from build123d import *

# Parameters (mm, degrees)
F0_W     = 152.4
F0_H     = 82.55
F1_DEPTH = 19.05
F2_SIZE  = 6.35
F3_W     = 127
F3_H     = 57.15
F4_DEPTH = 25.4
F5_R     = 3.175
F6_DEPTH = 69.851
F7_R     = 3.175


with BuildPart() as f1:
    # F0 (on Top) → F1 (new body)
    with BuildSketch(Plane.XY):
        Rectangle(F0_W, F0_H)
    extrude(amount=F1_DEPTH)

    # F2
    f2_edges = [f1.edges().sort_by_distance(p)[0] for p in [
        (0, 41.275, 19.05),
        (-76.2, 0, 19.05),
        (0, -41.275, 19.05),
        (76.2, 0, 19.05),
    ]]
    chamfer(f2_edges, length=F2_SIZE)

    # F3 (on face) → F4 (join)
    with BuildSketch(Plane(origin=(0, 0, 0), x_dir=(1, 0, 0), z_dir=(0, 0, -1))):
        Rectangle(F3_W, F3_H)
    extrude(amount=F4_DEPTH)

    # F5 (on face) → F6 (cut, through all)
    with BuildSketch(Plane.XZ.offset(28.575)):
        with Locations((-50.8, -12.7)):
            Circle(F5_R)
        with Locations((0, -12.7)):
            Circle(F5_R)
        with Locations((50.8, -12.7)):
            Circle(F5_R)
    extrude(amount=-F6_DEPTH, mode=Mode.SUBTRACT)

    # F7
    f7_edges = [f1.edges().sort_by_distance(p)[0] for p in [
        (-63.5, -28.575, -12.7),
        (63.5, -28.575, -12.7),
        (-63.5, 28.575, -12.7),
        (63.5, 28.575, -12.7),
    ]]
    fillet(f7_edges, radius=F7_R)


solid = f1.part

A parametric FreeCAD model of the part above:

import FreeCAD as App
import Part
import Sketcher

V = App.Vector
Q = App.Units.Quantity


def edges_at(feature, points):
    """Names of the edges that pass closest to the given points."""
    edges = feature.Shape.Edges
    near = lambda p: min(range(len(edges)), key=lambda i: edges[i].distToShape(Part.Vertex(*p))[0])
    return sorted({f"Edge{near(p) + 1}" for p in points})


def add_polygon(sketch, points):
    """Adds a closed chain of lines whose ends are joined by coincident constraints."""
    first, n = sketch.GeometryCount, len(points)
    for a, b in zip(points, points[1:] + points[:1]):
        sketch.addGeometry(Part.LineSegment(App.Vector(*a, 0), App.Vector(*b, 0)), False)
    for i in range(n):
        sketch.addConstraint(Sketcher.Constraint("Coincident", first + i, 2, first + (i + 1) % n, 1))

doc = App.newDocument("Part")
params = doc.addObject("Spreadsheet::Sheet", "Params")
for row, (alias, value) in enumerate([
    ("sketch1_width", "6 in"),
    ("sketch1_height", "3.25 in"),
    ("pad1_length", "0.75 in"),
    ("chamfer_size", "0.25 in"),
    ("sketch2_width", "5 in"),
    ("sketch2_height", "2.25 in"),
    ("pad2_length", "1 in"),
    ("sketch3_diameter", "0.25 in"),
    ("fillet_radius", "0.125 in"),
], start=1):
    params.set(f"A{row}", alias)
    params.set(f"B{row}", "=" + value)
    params.setAlias(f"B{row}", alias)

body = doc.addObject("PartDesign::Body", "Body")

# Sketch on XY plane
sketch1 = body.newObject("Sketcher::SketchObject", "Sketch")
sketch1.AttachmentSupport = (doc.getObject("XY_Plane"), [""])
sketch1.MapMode = "FlatFace"
add_polygon(sketch1, [(-76.2, 41.275), (-76.2, -41.275), (76.2, -41.275), (76.2, 41.275)])  # lines 0-3
sketch1.addConstraint([
    Sketcher.Constraint("Vertical", 0),
    Sketcher.Constraint("Horizontal", 1),
    Sketcher.Constraint("Vertical", 2),
    Sketcher.Constraint("Horizontal", 3),
    Sketcher.Constraint("Symmetric", 0, 2, 2, 2, -1, 1),
    Sketcher.Constraint("DistanceX", 1, 1, 1, 2, Q("6 in")),
    Sketcher.Constraint("DistanceY", 0, 2, 0, 1, Q("3.25 in")),
])
sketch1.setExpression("Constraints[9]", "Params.sketch1_width")
sketch1.setExpression("Constraints[10]", "Params.sketch1_height")
pad1 = body.newObject("PartDesign::Pad", "Pad")
pad1.Profile = sketch1
pad1.setExpression("Length", "Params.pad1_length")
doc.recompute()

chamfer = body.newObject("PartDesign::Chamfer", "Chamfer")
chamfer.Base = (pad1, edges_at(pad1, [
    (0, 41.275, 19.05),
    (-76.2, 0, 19.05),
    (0, -41.275, 19.05),
    (76.2, 0, 19.05),
]))
chamfer.setExpression("Size", "Params.chamfer_size")

# Sketch on XY plane
sketch2 = body.newObject("Sketcher::SketchObject", "Sketch001")
sketch2.AttachmentSupport = (doc.getObject("XY_Plane"), [""])
sketch2.MapMode = "FlatFace"
add_polygon(sketch2, [(-63.5, -28.575), (-63.5, 28.575), (63.5, 28.575), (63.5, -28.575)])  # lines 0-3
sketch2.addConstraint([
    Sketcher.Constraint("Vertical", 0),
    Sketcher.Constraint("Horizontal", 1),
    Sketcher.Constraint("Vertical", 2),
    Sketcher.Constraint("Horizontal", 3),
    Sketcher.Constraint("Symmetric", 0, 2, 2, 2, -1, 1),
    Sketcher.Constraint("DistanceX", 1, 1, 1, 2, Q("5 in")),
    Sketcher.Constraint("DistanceY", 0, 1, 0, 2, Q("2.25 in")),
])
sketch2.setExpression("Constraints[9]", "Params.sketch2_width")
sketch2.setExpression("Constraints[10]", "Params.sketch2_height")
pad2 = body.newObject("PartDesign::Pad", "Pad001")
pad2.Profile = sketch2
pad2.setExpression("Length", "Params.pad2_length")
pad2.Reversed = True

# Sketch on XZ plane
sketch3 = body.newObject("Sketcher::SketchObject", "Sketch002")
sketch3.AttachmentSupport = (doc.getObject("XZ_Plane"), [""])
sketch3.MapMode = "FlatFace"
sketch3.AttachmentOffset = App.Placement(V(0, 0, 1.125 * 25.4), App.Rotation())
sketch3.addGeometry([
    Part.Circle(V(-50.8, -12.7, 0), V(0, 0, 1), 3.175),
    Part.Circle(V(0, -12.7, 0), V(0, 0, 1), 3.175),
    Part.Circle(V(50.8, -12.7, 0), V(0, 0, 1), 3.175),
], False)
sketch3.addConstraint([
    Sketcher.Constraint("Equal", 0, 1),
    Sketcher.Constraint("Equal", 1, 2),
    Sketcher.Constraint("Symmetric", 0, 3, 2, 3, -2),
    Sketcher.Constraint("PointOnObject", 1, 3, -2),
    Sketcher.Constraint("Horizontal", 0, 3, 1, 3),
    Sketcher.Constraint("Diameter", 0, Q("0.25 in")),
    Sketcher.Constraint("DistanceX", 0, 3, -1, 1, Q("2 in")),
    Sketcher.Constraint("DistanceY", 0, 3, -1, 1, Q("0.5 in")),
])
sketch3.setExpression("Constraints[5]", "Params.sketch3_diameter")
pocket1 = body.newObject("PartDesign::Pocket", "Pocket")
pocket1.Profile = sketch3
pocket1.Type = "ThroughAll"
doc.recompute()

fillet = body.newObject("PartDesign::Fillet", "Fillet")
fillet.Base = (pocket1, edges_at(pocket1, [
    (-63.5, -28.575, -12.7),
    (63.5, -28.575, -12.7),
    (-63.5, 28.575, -12.7),
    (63.5, 28.575, -12.7),
]))
fillet.setExpression("Radius", "Params.fillet_radius")

doc.recompute()
